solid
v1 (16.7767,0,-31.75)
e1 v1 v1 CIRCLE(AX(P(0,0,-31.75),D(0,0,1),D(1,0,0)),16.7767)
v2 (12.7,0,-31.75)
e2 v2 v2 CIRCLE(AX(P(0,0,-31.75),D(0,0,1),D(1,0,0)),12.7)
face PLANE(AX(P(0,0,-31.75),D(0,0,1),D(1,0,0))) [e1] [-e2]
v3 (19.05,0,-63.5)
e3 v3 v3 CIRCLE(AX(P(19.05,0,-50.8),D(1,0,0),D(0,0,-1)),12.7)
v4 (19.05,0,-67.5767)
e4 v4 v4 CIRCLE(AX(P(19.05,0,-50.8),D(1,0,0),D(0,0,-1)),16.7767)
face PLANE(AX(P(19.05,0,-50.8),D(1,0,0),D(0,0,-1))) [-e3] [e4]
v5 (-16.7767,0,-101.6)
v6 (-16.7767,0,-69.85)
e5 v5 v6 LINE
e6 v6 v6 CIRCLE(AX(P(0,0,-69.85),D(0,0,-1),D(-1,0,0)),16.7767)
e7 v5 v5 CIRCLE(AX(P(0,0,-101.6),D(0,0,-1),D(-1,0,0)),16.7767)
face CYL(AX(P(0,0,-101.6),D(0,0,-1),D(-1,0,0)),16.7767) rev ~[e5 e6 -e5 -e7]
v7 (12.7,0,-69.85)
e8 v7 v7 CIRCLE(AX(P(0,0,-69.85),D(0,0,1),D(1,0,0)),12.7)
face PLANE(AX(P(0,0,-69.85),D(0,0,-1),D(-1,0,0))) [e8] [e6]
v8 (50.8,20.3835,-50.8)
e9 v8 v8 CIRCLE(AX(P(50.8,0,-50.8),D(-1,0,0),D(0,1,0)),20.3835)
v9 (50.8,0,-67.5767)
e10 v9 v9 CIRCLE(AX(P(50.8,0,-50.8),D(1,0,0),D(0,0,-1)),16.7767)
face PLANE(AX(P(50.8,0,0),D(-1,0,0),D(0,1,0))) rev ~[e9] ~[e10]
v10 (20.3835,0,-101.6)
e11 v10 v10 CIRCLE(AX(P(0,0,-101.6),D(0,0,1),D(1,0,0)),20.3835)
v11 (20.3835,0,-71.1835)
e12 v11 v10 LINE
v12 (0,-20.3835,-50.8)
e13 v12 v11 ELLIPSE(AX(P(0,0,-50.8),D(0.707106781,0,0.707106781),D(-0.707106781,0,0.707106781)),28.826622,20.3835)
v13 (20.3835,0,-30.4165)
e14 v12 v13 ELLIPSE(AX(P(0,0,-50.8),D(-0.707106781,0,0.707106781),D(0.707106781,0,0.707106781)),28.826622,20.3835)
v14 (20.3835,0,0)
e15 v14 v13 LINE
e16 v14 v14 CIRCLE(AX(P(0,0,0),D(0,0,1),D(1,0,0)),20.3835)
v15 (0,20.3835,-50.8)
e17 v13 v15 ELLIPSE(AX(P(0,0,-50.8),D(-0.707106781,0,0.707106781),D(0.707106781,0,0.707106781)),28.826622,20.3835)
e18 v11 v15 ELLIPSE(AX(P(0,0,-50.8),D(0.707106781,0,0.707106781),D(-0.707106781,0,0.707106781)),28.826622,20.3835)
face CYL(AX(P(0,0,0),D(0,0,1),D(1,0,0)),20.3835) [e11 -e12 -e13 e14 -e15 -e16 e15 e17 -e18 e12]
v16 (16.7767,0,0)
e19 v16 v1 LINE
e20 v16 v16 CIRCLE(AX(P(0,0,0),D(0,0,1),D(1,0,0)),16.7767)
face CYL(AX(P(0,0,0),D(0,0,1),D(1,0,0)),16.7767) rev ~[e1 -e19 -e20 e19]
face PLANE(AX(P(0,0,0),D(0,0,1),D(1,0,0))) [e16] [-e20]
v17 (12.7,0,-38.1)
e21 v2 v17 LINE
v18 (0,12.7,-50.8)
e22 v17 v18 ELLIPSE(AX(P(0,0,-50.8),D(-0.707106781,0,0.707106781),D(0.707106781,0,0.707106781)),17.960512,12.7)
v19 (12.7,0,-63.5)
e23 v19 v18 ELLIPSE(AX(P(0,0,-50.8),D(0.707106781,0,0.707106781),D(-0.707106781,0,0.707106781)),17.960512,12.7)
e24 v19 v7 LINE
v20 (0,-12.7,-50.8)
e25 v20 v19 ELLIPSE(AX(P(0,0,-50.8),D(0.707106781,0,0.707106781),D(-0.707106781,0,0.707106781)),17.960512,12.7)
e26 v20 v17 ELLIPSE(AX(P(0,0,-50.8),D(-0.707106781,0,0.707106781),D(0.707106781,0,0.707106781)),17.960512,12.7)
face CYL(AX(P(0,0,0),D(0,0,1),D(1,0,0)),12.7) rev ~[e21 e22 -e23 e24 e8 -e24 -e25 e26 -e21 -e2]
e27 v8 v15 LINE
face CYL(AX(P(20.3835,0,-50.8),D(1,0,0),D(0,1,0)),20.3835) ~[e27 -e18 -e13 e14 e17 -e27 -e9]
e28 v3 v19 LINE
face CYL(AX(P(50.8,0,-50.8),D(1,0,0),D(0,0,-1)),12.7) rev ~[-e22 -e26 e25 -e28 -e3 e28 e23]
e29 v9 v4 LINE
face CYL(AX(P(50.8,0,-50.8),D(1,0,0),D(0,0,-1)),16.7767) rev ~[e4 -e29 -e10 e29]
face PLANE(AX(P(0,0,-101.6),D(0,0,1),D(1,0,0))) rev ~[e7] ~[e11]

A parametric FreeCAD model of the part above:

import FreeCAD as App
import Part
import Sketcher
Q = App.Units.Quantity

doc = App.newDocument("Part")
body = doc.addObject("PartDesign::Body", "Body")
body.AllowCompound = True

# Sketch on XY plane
sketch1 = body.newObject("Sketcher::SketchObject", "Sketch")
sketch1.AttachmentSupport = (doc.getObject("XY_Plane"), [""])
sketch1.MapMode = "FlatFace"
sketch1.addGeometry(Part.Circle(App.Vector(0, 0, 0), App.Vector(0, 0, 1), 20), False)
sketch1.addConstraint(Sketcher.Constraint("Coincident", 0, 3, -1, 1))
sketch1.addConstraint(Sketcher.Constraint("Diameter", 0, Q("1.605 in")))
pad1 = body.newObject("PartDesign::Pad", "Pad")
pad1.Profile = sketch1
pad1.Length = Q("4 in")
pad1.Reversed = True

# Sketch on YZ plane
sketch2 = body.newObject("Sketcher::SketchObject", "Sketch001")
sketch2.AttachmentSupport = (doc.getObject("YZ_Plane"), [""])
sketch2.MapMode = "FlatFace"
sketch2.AttachmentOffset = App.Placement(App.Vector(0, 0, 0.8025 * 25.4), App.Rotation())
sketch2.addGeometry(Part.Circle(App.Vector(0, -51, 0), App.Vector(0, 0, 1), 20), False)
sketch2.addConstraint(Sketcher.Constraint("PointOnObject", 0, 3, -2))
sketch2.addConstraint(Sketcher.Constraint("Diameter", 0, Q("1.605 in")))
sketch2.addConstraint(Sketcher.Constraint("DistanceY", 0, 3, -1, 1, Q("2 in")))
pad2 = body.newObject("PartDesign::Pad", "Pad001")
pad2.Profile = sketch2
pad2.Length = Q("1.1975 in")

# Sketch on YZ plane
sketch3 = body.newObject("Sketcher::SketchObject", "Sketch002")
sketch3.AttachmentSupport = (doc.getObject("YZ_Plane"), [""])
sketch3.MapMode = "FlatFace"
sketch3.AttachmentOffset = App.Placement(App.Vector(0, 0, 0.8025 * 25.4), App.Rotation())
sketch3.addGeometry(Part.Circle(App.Vector(0, -51, 0), App.Vector(0, 0, 1), 20), False)
sketch3.addConstraint(Sketcher.Constraint("PointOnObject", 0, 3, -2))
sketch3.addConstraint(Sketcher.Constraint("Diameter", 0, Q("1.605 in")))
sketch3.addConstraint(Sketcher.Constraint("DistanceY", 0, 3, -1, 1, Q("2 in")))
pad3 = body.newObject("PartDesign::Pad", "Pad002")
pad3.Profile = sketch3
pad3.Length = Q("0.8025 in")
pad3.Reversed = True

# Sketch on XY plane
sketch4 = body.newObject("Sketcher::SketchObject", "Sketch003")
sketch4.AttachmentSupport = (doc.getObject("XY_Plane"), [""])
sketch4.MapMode = "FlatFace"
sketch4.AttachmentOffset = App.Placement(App.Vector(0, 0, -4 * 25.4), App.Rotation())
sketch4.addGeometry(Part.Circle(App.Vector(0, 0, 0), App.Vector(0, 0, 1), 17), False)
sketch4.addConstraint(Sketcher.Constraint("Coincident", 0, 3, -1, 1))
sketch4.addConstraint(Sketcher.Constraint("Diameter", 0, Q("1.321 in")))
pocket1 = body.newObject("PartDesign::Pocket", "Pocket")
pocket1.Profile = sketch4
pocket1.Length = Q("1.25 in")
pocket1.Reversed = True

# Sketch on YZ plane
sketch5 = body.newObject("Sketcher::SketchObject", "Sketch004")
sketch5.AttachmentSupport = (doc.getObject("YZ_Plane"), [""])
sketch5.MapMode = "FlatFace"
sketch5.AttachmentOffset = App.Placement(App.Vector(0, 0, 2 * 25.4), App.Rotation())
sketch5.addGeometry(Part.Circle(App.Vector(0, -51, 0), App.Vector(0, 0, 1), 17), False)
sketch5.addConstraint(Sketcher.Constraint("PointOnObject", 0, 3, -2))
sketch5.addConstraint(Sketcher.Constraint("Diameter", 0, Q("1.321 in")))
sketch5.addConstraint(Sketcher.Constraint("DistanceY", 0, 3, -1, 1, Q("2 in")))
pocket2 = body.newObject("PartDesign::Pocket", "Pocket001")
pocket2.Profile = sketch5
pocket2.Length = Q("1.25 in")

# Sketch on XY plane
sketch6 = body.newObject("Sketcher::SketchObject", "Sketch005")
sketch6.AttachmentSupport = (doc.getObject("XY_Plane"), [""])
sketch6.MapMode = "FlatFace"
sketch6.addGeometry(Part.Circle(App.Vector(0, 0, 0), App.Vector(0, 0, 1), 17), False)
sketch6.addConstraint(Sketcher.Constraint("Coincident", 0, 3, -1, 1))
sketch6.addConstraint(Sketcher.Constraint("Diameter", 0, Q("1.321 in")))
pocket3 = body.newObject("PartDesign::Pocket", "Pocket002")
pocket3.Profile = sketch6
pocket3.Length = Q("1.25 in")

# Sketch on XY plane
sketch7 = body.newObject("Sketcher::SketchObject", "Sketch006")
sketch7.AttachmentSupport = (doc.getObject("XY_Plane"), [""])
sketch7.MapMode = "FlatFace"
sketch7.addGeometry(Part.Circle(App.Vector(0, 0, 0), App.Vector(0, 0, 1), 13), False)
sketch7.addConstraint(Sketcher.Constraint("Coincident", 0, 3, -1, 1))
sketch7.addConstraint(Sketcher.Constraint("Diameter", 0, Q("1 in")))
pocket4 = body.newObject("PartDesign::Pocket", "Pocket003")
pocket4.Profile = sketch7
pocket4.Length = Q("4 in")

# Sketch on YZ plane
sketch8 = body.newObject("Sketcher::SketchObject", "Sketch007")
sketch8.AttachmentSupport = (doc.getObject("YZ_Plane"), [""])
sketch8.MapMode = "FlatFace"
sketch8.AttachmentOffset = App.Placement(App.Vector(0, 0, 2 * 25.4), App.Rotation())
sketch8.addGeometry(Part.Circle(App.Vector(0, -51, 0), App.Vector(0, 0, 1), 13), False)
sketch8.addConstraint(Sketcher.Constraint("PointOnObject", 0, 3, -2))
sketch8.addConstraint(Sketcher.Constraint("Diameter", 0, Q("1 in")))
sketch8.addConstraint(Sketcher.Constraint("DistanceY", 0, 3, -1, 1, Q("2 in")))
pocket5 = body.newObject("PartDesign::Pocket", "Pocket004")
pocket5.Profile = sketch8
pocket5.Length = Q("2 in")

doc.recompute()
